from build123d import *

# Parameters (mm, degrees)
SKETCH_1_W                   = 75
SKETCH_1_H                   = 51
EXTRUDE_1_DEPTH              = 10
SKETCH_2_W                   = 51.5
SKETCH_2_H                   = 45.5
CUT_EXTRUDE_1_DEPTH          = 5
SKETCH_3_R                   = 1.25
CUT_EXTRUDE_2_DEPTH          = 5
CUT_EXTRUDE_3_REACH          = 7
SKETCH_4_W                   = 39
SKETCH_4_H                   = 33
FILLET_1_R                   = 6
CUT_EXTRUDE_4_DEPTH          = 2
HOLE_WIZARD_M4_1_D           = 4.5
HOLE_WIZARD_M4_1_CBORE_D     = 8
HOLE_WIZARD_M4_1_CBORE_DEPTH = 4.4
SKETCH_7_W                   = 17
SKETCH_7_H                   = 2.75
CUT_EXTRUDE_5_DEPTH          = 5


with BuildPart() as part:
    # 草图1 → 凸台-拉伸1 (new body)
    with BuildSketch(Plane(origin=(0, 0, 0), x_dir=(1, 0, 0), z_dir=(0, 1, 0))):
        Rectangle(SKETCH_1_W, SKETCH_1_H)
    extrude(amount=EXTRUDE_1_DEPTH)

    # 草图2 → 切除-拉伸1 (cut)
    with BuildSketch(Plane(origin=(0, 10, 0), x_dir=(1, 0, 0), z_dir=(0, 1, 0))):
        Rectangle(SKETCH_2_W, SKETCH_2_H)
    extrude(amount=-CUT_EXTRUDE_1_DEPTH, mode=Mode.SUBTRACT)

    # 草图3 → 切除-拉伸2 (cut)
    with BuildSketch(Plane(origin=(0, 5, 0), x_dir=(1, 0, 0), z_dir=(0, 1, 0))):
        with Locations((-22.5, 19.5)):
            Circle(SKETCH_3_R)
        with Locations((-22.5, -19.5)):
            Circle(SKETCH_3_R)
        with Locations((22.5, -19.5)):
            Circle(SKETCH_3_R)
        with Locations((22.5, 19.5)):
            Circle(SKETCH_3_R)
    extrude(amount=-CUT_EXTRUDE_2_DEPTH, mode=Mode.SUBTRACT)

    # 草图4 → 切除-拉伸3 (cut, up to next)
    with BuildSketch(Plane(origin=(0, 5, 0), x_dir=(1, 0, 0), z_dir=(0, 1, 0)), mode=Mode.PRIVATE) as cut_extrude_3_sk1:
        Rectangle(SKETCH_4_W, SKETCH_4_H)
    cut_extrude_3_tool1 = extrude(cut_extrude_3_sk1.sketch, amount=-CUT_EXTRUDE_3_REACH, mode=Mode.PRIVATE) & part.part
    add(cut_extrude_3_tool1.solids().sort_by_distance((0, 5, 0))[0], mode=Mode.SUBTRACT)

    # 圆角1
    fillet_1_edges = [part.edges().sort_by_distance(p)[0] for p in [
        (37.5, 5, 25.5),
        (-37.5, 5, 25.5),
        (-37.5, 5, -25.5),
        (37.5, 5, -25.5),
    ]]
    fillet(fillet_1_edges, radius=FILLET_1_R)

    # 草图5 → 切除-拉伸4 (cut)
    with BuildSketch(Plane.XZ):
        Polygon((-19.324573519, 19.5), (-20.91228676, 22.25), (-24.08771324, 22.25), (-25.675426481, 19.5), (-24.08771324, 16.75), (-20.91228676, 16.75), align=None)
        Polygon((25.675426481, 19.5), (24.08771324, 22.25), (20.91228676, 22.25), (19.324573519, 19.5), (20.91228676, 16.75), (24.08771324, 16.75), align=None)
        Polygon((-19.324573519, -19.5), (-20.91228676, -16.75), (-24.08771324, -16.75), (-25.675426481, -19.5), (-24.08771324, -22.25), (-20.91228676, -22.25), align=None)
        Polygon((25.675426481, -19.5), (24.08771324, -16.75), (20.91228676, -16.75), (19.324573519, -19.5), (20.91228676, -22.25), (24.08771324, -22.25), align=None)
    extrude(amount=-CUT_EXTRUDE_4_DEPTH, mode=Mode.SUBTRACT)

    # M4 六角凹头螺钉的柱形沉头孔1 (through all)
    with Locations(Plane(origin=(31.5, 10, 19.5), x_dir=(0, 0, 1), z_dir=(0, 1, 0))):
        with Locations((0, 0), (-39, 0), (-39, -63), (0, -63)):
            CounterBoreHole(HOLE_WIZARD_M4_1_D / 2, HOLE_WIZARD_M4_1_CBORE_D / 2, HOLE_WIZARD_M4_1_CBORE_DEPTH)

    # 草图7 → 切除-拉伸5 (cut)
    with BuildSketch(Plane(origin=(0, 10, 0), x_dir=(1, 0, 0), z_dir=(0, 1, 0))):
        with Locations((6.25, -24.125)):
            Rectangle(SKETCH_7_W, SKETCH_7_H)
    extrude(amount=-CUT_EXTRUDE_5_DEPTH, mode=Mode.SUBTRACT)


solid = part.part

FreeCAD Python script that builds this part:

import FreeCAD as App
import Part
import Sketcher
Q = App.Units.Quantity


def edges_at(feature, points):
    """Names of the edges that pass closest to the given points."""
    edges = feature.Shape.Edges
    near = lambda p: min(range(len(edges)), key=lambda i: edges[i].distToShape(Part.Vertex(*p))[0])
    return sorted({f"Edge{near(p) + 1}" for p in points})

doc = App.newDocument("Part")
body = doc.addObject("PartDesign::Body", "Body")

# Sketch on XZ plane
sketch1 = doc.addObject("Sketcher::SketchObject", "Sketch")
body.addObject(sketch1)
sketch1.AttachmentSupport = (doc.XZ_Plane, [""])
sketch1.MapMode = "FlatFace"
sketch1.addGeometry([
    Part.LineSegment(App.Vector(-38, -26, 0), App.Vector(-38, 26, 0)),
    Part.LineSegment(App.Vector(-38, 26, 0), App.Vector(38, 26, 0)),
    Part.LineSegment(App.Vector(38, 26, 0), App.Vector(38, -26, 0)),
    Part.LineSegment(App.Vector(38, -26, 0), App.Vector(-38, -26, 0)),
], False)
sketch1.addConstraint([
    Sketcher.Constraint("Coincident", 0, 2, 1, 1),
    Sketcher.Constraint("Coincident", 1, 2, 2, 1),
    Sketcher.Constraint("Coincident", 2, 2, 3, 1),
    Sketcher.Constraint("Coincident", 3, 2, 0, 1),
    Sketcher.Constraint("Vertical", 0),
    Sketcher.Constraint("Horizontal", 1),
    Sketcher.Constraint("Vertical", 2),
    Sketcher.Constraint("Horizontal", 3),
    Sketcher.Constraint("Symmetric", 0, 2, 2, 2, -1, 1),
    Sketcher.Constraint("DistanceX", 1, 1, 1, 2, Q("75 mm")),
    Sketcher.Constraint("DistanceY", 0, 1, 0, 2, Q("51 mm")),
])
pad1 = doc.addObject("PartDesign::Pad", "Pad")
body.addObject(pad1)
pad1.Profile = sketch1
pad1.Length = 10
pad1.Reversed = True

# Sketch on XZ plane
sketch2 = doc.addObject("Sketcher::SketchObject", "Sketch001")
body.addObject(sketch2)
sketch2.AttachmentSupport = (doc.XZ_Plane, [""])
sketch2.MapMode = "FlatFace"
sketch2.AttachmentOffset = App.Placement(App.Vector(0, 0, -10), App.Rotation())
sketch2.addGeometry([
    Part.LineSegment(App.Vector(-26, -23, 0), App.Vector(-26, 23, 0)),
    Part.LineSegment(App.Vector(-26, 23, 0), App.Vector(26, 23, 0)),
    Part.LineSegment(App.Vector(26, 23, 0), App.Vector(26, -23, 0)),
    Part.LineSegment(App.Vector(26, -23, 0), App.Vector(-26, -23, 0)),
], False)
sketch2.addConstraint([
    Sketcher.Constraint("Coincident", 0, 2, 1, 1),
    Sketcher.Constraint("Coincident", 1, 2, 2, 1),
    Sketcher.Constraint("Coincident", 2, 2, 3, 1),
    Sketcher.Constraint("Coincident", 3, 2, 0, 1),
    Sketcher.Constraint("Vertical", 0),
    Sketcher.Constraint("Horizontal", 1),
    Sketcher.Constraint("Vertical", 2),
    Sketcher.Constraint("Horizontal", 3),
    Sketcher.Constraint("Symmetric", 0, 2, 2, 2, -1, 1),
    Sketcher.Constraint("DistanceX", 1, 1, 1, 2, Q("51.5 mm")),
    Sketcher.Constraint("DistanceY", 0, 1, 0, 2, Q("45.5 mm")),
])
pocket1 = doc.addObject("PartDesign::Pocket", "Pocket")
body.addObject(pocket1)
pocket1.Profile = sketch2
pocket1.Length = 5
pocket1.Reversed = True

# Sketch on XZ plane
sketch3 = doc.addObject("Sketcher::SketchObject", "Sketch002")
body.addObject(sketch3)
sketch3.AttachmentSupport = (doc.XZ_Plane, [""])
sketch3.MapMode = "FlatFace"
sketch3.AttachmentOffset = App.Placement(App.Vector(0, 0, -5), App.Rotation())
sketch3.addGeometry([
    Part.Circle(App.Vector(-22.5, -19.5, 0), App.Vector(0, 0, 1), 1.2),
    Part.Circle(App.Vector(-22.5, 19.5, 0), App.Vector(0, 0, 1), 1.2),
    Part.Circle(App.Vector(22.5, 19.5, 0), App.Vector(0, 0, 1), 1.2),
    Part.Circle(App.Vector(22.5, -19.5, 0), App.Vector(0, 0, 1), 1.2),
], False)
sketch3.addConstraint([
    Sketcher.Constraint("Equal", 0, 1),
    Sketcher.Constraint("Equal", 1, 2),
    Sketcher.Constraint("Equal", 2, 3),
    Sketcher.Constraint("Symmetric", 0, 3, 2, 3, -1, 1),
    Sketcher.Constraint("Symmetric", 1, 3, 3, 3, -1, 1),
    Sketcher.Constraint("Symmetric", 1, 3, 2, 3, -2),
    Sketcher.Constraint("Diameter", 0, Q("2.5 mm")),
    Sketcher.Constraint("DistanceY", 0, 3, 1, 3, Q("39 mm")),
    Sketcher.Constraint("DistanceX", 1, 3, 2, 3, Q("45 mm")),
])
pocket2 = doc.addObject("PartDesign::Pocket", "Pocket001")
body.addObject(pocket2)
pocket2.Profile = sketch3
pocket2.Length = 5
pocket2.Reversed = True

# Sketch on XZ plane
sketch4 = doc.addObject("Sketcher::SketchObject", "Sketch003")
body.addObject(sketch4)
sketch4.AttachmentSupport = (doc.XZ_Plane, [""])
sketch4.MapMode = "FlatFace"
sketch4.AttachmentOffset = App.Placement(App.Vector(0, 0, -5), App.Rotation())
sketch4.addGeometry([
    Part.LineSegment(App.Vector(-20, -16, 0), App.Vector(-20, 16, 0)),
    Part.LineSegment(App.Vector(-20, 16, 0), App.Vector(20, 16, 0)),
    Part.LineSegment(App.Vector(20, 16, 0), App.Vector(20, -16, 0)),
    Part.LineSegment(App.Vector(20, -16, 0), App.Vector(-20, -16, 0)),
], False)
sketch4.addConstraint([
    Sketcher.Constraint("Coincident", 0, 2, 1, 1),
    Sketcher.Constraint("Coincident", 1, 2, 2, 1),
    Sketcher.Constraint("Coincident", 2, 2, 3, 1),
    Sketcher.Constraint("Coincident", 3, 2, 0, 1),
    Sketcher.Constraint("Vertical", 0),
    Sketcher.Constraint("Horizontal", 1),
    Sketcher.Constraint("Vertical", 2),
    Sketcher.Constraint("Horizontal", 3),
    Sketcher.Constraint("Symmetric", 0, 2, 2, 2, -1, 1),
    Sketcher.Constraint("DistanceX", 1, 1, 1, 2, Q("39 mm")),
    Sketcher.Constraint("DistanceY", 0, 1, 0, 2, Q("33 mm")),
])
pocket3 = doc.addObject("PartDesign::Pocket", "Pocket002")
body.addObject(pocket3)
pocket3.Profile = sketch4
pocket3.Type = "UpToFirst"
pocket3.Reversed = True
doc.recompute()

fillet = doc.addObject("PartDesign::Fillet", "Fillet")
body.addObject(fillet)
fillet.Base = (pocket3, edges_at(pocket3, [
    (37.5, 5, 25.5),
    (-37.5, 5, 25.5),
    (-37.5, 5, -25.5),
    (37.5, 5, -25.5),
]))
fillet.Radius = 6

# Sketch on XZ plane
sketch5 = doc.addObject("Sketcher::SketchObject", "Sketch004")
body.addObject(sketch5)
sketch5.AttachmentSupport = (doc.XZ_Plane, [""])
sketch5.MapMode = "FlatFace"
sketch5.addGeometry([
    Part.LineSegment(App.Vector(-19.3, 19.5, 0), App.Vector(-20.9, 22.2, 0)),  # 0
    Part.LineSegment(App.Vector(-20.9, 22.2, 0), App.Vector(-24.1, 22.2, 0)),  # 1
    Part.LineSegment(App.Vector(-24.1, 22.2, 0), App.Vector(-25.7, 19.5, 0)),  # 2
    Part.LineSegment(App.Vector(-25.7, 19.5, 0), App.Vector(-24.1, 16.8, 0)),  # 3
    Part.LineSegment(App.Vector(-24.1, 16.8, 0), App.Vector(-20.9, 16.8, 0)),  # 4
    Part.LineSegment(App.Vector(-20.9, 16.8, 0), App.Vector(-19.3, 19.5, 0)),  # 5
    Part.LineSegment(App.Vector(25.7, 19.5, 0), App.Vector(24.1, 22.2, 0)),  # 6
    Part.LineSegment(App.Vector(24.1, 22.2, 0), App.Vector(20.9, 22.2, 0)),  # 7
    Part.LineSegment(App.Vector(20.9, 22.2, 0), App.Vector(19.3, 19.5, 0)),  # 8
    Part.LineSegment(App.Vector(19.3, 19.5, 0), App.Vector(20.9, 16.8, 0)),  # 9
    Part.LineSegment(App.Vector(20.9, 16.8, 0), App.Vector(24.1, 16.8, 0)),  # 10
    Part.LineSegment(App.Vector(24.1, 16.8, 0), App.Vector(25.7, 19.5, 0)),  # 11
    Part.LineSegment(App.Vector(-19.3, -19.5, 0), App.Vector(-20.9, -16.8, 0)),  # 12
    Part.LineSegment(App.Vector(-20.9, -16.8, 0), App.Vector(-24.1, -16.8, 0)),  # 13
    Part.LineSegment(App.Vector(-24.1, -16.8, 0), App.Vector(-25.7, -19.5, 0)),  # 14
    Part.LineSegment(App.Vector(-25.7, -19.5, 0), App.Vector(-24.1, -22.2, 0)),  # 15
    Part.LineSegment(App.Vector(-24.1, -22.2, 0), App.Vector(-20.9, -22.2, 0)),  # 16
    Part.LineSegment(App.Vector(-20.9, -22.2, 0), App.Vector(-19.3, -19.5, 0)),  # 17
    Part.LineSegment(App.Vector(25.7, -19.5, 0), App.Vector(24.1, -16.8, 0)),  # 18
    Part.LineSegment(App.Vector(24.1, -16.8, 0), App.Vector(20.9, -16.8, 0)),  # 19
    Part.LineSegment(App.Vector(20.9, -16.8, 0), App.Vector(19.3, -19.5, 0)),  # 20
    Part.LineSegment(App.Vector(19.3, -19.5, 0), App.Vector(20.9, -22.2, 0)),  # 21
    Part.LineSegment(App.Vector(20.9, -22.2, 0), App.Vector(24.1, -22.2, 0)),  # 22
    Part.LineSegment(App.Vector(24.1, -22.2, 0), App.Vector(25.7, -19.5, 0)),  # 23
], False)
sketch5.addConstraint([
    Sketcher.Constraint("Coincident", 0, 2, 1, 1),
    Sketcher.Constraint("Coincident", 1, 2, 2, 1),
    Sketcher.Constraint("Coincident", 2, 2, 3, 1),
    Sketcher.Constraint("Coincident", 3, 2, 4, 1),
    Sketcher.Constraint("Coincident", 4, 2, 5, 1),
    Sketcher.Constraint("Coincident", 5, 2, 0, 1),
    Sketcher.Constraint("Coincident", 6, 2, 7, 1),
    Sketcher.Constraint("Coincident", 7, 2, 8, 1),
    Sketcher.Constraint("Coincident", 8, 2, 9, 1),
    Sketcher.Constraint("Coincident", 9, 2, 10, 1),
    Sketcher.Constraint("Coincident", 10, 2, 11, 1),
    Sketcher.Constraint("Coincident", 11, 2, 6, 1),
    Sketcher.Constraint("Coincident", 12, 2, 13, 1),
    Sketcher.Constraint("Coincident", 13, 2, 14, 1),
    Sketcher.Constraint("Coincident", 14, 2, 15, 1),
    Sketcher.Constraint("Coincident", 15, 2, 16, 1),
    Sketcher.Constraint("Coincident", 16, 2, 17, 1),
    Sketcher.Constraint("Coincident", 17, 2, 12, 1),
    Sketcher.Constraint("Coincident", 18, 2, 19, 1),
    Sketcher.Constraint("Coincident", 19, 2, 20, 1),
    Sketcher.Constraint("Coincident", 20, 2, 21, 1),
    Sketcher.Constraint("Coincident", 21, 2, 22, 1),
    Sketcher.Constraint("Coincident", 22, 2, 23, 1),
    Sketcher.Constraint("Coincident", 23, 2, 18, 1),
    Sketcher.Constraint("Horizontal", 1),
    Sketcher.Constraint("Horizontal", 4),
    Sketcher.Constraint("Horizontal", 7),
    Sketcher.Constraint("Horizontal", 10),
    Sketcher.Constraint("Horizontal", 13),
    Sketcher.Constraint("Horizontal", 16),
    Sketcher.Constraint("Horizontal", 19),
    Sketcher.Constraint("Horizontal", 22),
    Sketcher.Constraint("Symmetric", 9, 2, 12, 2, -1, 1),
    Sketcher.Constraint("Symmetric", 11, 2, 14, 2, -1, 1),
    Sketcher.Constraint("Symmetric", 6, 2, 15, 2, -1, 1),
    Sketcher.Constraint("Symmetric", 8, 2, 17, 2, -1, 1),
    Sketcher.Constraint("Symmetric", 3, 2, 18, 2, -1, 1),
    Sketcher.Constraint("Symmetric", 5, 2, 20, 2, -1, 1),
    Sketcher.Constraint("Symmetric", 0, 2, 21, 2, -1, 1),
    Sketcher.Constraint("Symmetric", 2, 2, 23, 2, -1, 1),
    Sketcher.Constraint("Symmetric", 1, 2, 6, 2, -2),
    Sketcher.Constraint("Symmetric", 5, 2, 8, 2, -2),
    Sketcher.Constraint("Symmetric", 4, 2, 9, 2, -2),
    Sketcher.Constraint("Symmetric", 2, 2, 11, 2, -2),
    Sketcher.Constraint("Parallel", 0, 3),
    Sketcher.Constraint("Parallel", 2, 5),
    Sketcher.Constraint("Parallel", 3, 6),
    Sketcher.Constraint("Parallel", 5, 8),
    Sketcher.Constraint("Parallel", 8, 11),
    Sketcher.Constraint("Parallel", 11, 14),
    Sketcher.Constraint("Parallel", 14, 17),
    Sketcher.Constraint("Parallel", 17, 20),
    Sketcher.Constraint("Parallel", 20, 23),
    Sketcher.Constraint("Horizontal", 2, 2, 5, 2),
    Sketcher.Constraint("Vertical", 1, 2, 3, 2),
    Sketcher.Constraint("Angle", 0, Q("120 deg")),
    Sketcher.Constraint("DistanceX", 0, 2, 6, 2, Q("45 mm")),
    Sketcher.Constraint("DistanceY", 12, 2, 0, 2, Q("39 mm")),
    Sketcher.Constraint("DistanceY", 3, 2, 1, 2, Q("5.5 mm")),
    Sketcher.Constraint("DistanceX", 1, 2, 1, 1, Q("3.175426 mm")),
])
pocket4 = doc.addObject("PartDesign::Pocket", "Pocket003")
body.addObject(pocket4)
pocket4.Profile = sketch5
pocket4.Length = 2

# Sketch on XZ plane
sketch6 = doc.addObject("Sketcher::SketchObject", "Sketch005")
body.addObject(sketch6)
sketch6.AttachmentSupport = (doc.XZ_Plane, [""])
sketch6.MapMode = "FlatFace"
sketch6.AttachmentOffset = App.Placement(App.Vector(0, 0, -10), App.Rotation())
sketch6.addGeometry([
    Part.Circle(App.Vector(31.5, 19.5, 0), App.Vector(0, 0, 1), 2.2),
    Part.Circle(App.Vector(31.5, -19.5, 0), App.Vector(0, 0, 1), 2.2),
    Part.Circle(App.Vector(-31.5, -19.5, 0), App.Vector(0, 0, 1), 2.2),
    Part.Circle(App.Vector(-31.5, 19.5, 0), App.Vector(0, 0, 1), 2.2),
], False)
sketch6.addConstraint([
    Sketcher.Constraint("Equal", 0, 1),
    Sketcher.Constraint("Equal", 1, 2),
    Sketcher.Constraint("Equal", 2, 3),
    Sketcher.Constraint("Symmetric", 0, 3, 2, 3, -1, 1),
    Sketcher.Constraint("Symmetric", 1, 3, 3, 3, -1, 1),
    Sketcher.Constraint("Symmetric", 1, 3, 2, 3, -2),
    Sketcher.Constraint("Diameter", 0, Q("4.5 mm")),
    Sketcher.Constraint("DistanceY", 1, 3, 0, 3, Q("39 mm")),
    Sketcher.Constraint("DistanceX", 2, 3, 1, 3, Q("63 mm")),
])
doc.recompute()
hole = doc.addObject("PartDesign::Hole", "Hole")
body.addObject(hole)
hole.Profile = sketch6
hole.ThreadType = "None"
hole.Diameter = 4.5
hole.DepthType = "ThroughAll"
hole.HoleCutType = "Counterbore"
hole.HoleCutDiameter = 8
hole.HoleCutDepth = 4.4
hole.Reversed = True

# Sketch on XZ plane
sketch7 = doc.addObject("Sketcher::SketchObject", "Sketch006")
body.addObject(sketch7)
sketch7.AttachmentSupport = (doc.XZ_Plane, [""])
sketch7.MapMode = "FlatFace"
sketch7.AttachmentOffset = App.Placement(App.Vector(0, 0, -10), App.Rotation())
sketch7.addGeometry([
    Part.LineSegment(App.Vector(-2.2, 22.8, 0), App.Vector(-2.2, 25.5, 0)),
    Part.LineSegment(App.Vector(-2.2, 25.5, 0), App.Vector(14.8, 25.5, 0)),
    Part.LineSegment(App.Vector(14.8, 25.5, 0), App.Vector(14.8, 22.8, 0)),
    Part.LineSegment(App.Vector(14.8, 22.8, 0), App.Vector(-2.2, 22.8, 0)),
], False)
sketch7.addConstraint([
    Sketcher.Constraint("Coincident", 0, 2, 1, 1),
    Sketcher.Constraint("Coincident", 1, 2, 2, 1),
    Sketcher.Constraint("Coincident", 2, 2, 3, 1),
    Sketcher.Constraint("Coincident", 3, 2, 0, 1),
    Sketcher.Constraint("Vertical", 0),
    Sketcher.Constraint("Horizontal", 1),
    Sketcher.Constraint("Vertical", 2),
    Sketcher.Constraint("Horizontal", 3),
    Sketcher.Constraint("DistanceX", 1, 1, 1, 2, Q("17 mm")),
    Sketcher.Constraint("DistanceY", 0, 1, 0, 2, Q("2.75 mm")),
    Sketcher.Constraint("DistanceY", -1, 1, 0, 2, Q("25.5 mm")),
    Sketcher.Constraint("DistanceX", 0, 2, -1, 1, Q("2.25 mm")),
])
pocket5 = doc.addObject("PartDesign::Pocket", "Pocket004")
body.addObject(pocket5)
pocket5.Profile = sketch7
pocket5.Length = 5
pocket5.Reversed = True

doc.recompute()
